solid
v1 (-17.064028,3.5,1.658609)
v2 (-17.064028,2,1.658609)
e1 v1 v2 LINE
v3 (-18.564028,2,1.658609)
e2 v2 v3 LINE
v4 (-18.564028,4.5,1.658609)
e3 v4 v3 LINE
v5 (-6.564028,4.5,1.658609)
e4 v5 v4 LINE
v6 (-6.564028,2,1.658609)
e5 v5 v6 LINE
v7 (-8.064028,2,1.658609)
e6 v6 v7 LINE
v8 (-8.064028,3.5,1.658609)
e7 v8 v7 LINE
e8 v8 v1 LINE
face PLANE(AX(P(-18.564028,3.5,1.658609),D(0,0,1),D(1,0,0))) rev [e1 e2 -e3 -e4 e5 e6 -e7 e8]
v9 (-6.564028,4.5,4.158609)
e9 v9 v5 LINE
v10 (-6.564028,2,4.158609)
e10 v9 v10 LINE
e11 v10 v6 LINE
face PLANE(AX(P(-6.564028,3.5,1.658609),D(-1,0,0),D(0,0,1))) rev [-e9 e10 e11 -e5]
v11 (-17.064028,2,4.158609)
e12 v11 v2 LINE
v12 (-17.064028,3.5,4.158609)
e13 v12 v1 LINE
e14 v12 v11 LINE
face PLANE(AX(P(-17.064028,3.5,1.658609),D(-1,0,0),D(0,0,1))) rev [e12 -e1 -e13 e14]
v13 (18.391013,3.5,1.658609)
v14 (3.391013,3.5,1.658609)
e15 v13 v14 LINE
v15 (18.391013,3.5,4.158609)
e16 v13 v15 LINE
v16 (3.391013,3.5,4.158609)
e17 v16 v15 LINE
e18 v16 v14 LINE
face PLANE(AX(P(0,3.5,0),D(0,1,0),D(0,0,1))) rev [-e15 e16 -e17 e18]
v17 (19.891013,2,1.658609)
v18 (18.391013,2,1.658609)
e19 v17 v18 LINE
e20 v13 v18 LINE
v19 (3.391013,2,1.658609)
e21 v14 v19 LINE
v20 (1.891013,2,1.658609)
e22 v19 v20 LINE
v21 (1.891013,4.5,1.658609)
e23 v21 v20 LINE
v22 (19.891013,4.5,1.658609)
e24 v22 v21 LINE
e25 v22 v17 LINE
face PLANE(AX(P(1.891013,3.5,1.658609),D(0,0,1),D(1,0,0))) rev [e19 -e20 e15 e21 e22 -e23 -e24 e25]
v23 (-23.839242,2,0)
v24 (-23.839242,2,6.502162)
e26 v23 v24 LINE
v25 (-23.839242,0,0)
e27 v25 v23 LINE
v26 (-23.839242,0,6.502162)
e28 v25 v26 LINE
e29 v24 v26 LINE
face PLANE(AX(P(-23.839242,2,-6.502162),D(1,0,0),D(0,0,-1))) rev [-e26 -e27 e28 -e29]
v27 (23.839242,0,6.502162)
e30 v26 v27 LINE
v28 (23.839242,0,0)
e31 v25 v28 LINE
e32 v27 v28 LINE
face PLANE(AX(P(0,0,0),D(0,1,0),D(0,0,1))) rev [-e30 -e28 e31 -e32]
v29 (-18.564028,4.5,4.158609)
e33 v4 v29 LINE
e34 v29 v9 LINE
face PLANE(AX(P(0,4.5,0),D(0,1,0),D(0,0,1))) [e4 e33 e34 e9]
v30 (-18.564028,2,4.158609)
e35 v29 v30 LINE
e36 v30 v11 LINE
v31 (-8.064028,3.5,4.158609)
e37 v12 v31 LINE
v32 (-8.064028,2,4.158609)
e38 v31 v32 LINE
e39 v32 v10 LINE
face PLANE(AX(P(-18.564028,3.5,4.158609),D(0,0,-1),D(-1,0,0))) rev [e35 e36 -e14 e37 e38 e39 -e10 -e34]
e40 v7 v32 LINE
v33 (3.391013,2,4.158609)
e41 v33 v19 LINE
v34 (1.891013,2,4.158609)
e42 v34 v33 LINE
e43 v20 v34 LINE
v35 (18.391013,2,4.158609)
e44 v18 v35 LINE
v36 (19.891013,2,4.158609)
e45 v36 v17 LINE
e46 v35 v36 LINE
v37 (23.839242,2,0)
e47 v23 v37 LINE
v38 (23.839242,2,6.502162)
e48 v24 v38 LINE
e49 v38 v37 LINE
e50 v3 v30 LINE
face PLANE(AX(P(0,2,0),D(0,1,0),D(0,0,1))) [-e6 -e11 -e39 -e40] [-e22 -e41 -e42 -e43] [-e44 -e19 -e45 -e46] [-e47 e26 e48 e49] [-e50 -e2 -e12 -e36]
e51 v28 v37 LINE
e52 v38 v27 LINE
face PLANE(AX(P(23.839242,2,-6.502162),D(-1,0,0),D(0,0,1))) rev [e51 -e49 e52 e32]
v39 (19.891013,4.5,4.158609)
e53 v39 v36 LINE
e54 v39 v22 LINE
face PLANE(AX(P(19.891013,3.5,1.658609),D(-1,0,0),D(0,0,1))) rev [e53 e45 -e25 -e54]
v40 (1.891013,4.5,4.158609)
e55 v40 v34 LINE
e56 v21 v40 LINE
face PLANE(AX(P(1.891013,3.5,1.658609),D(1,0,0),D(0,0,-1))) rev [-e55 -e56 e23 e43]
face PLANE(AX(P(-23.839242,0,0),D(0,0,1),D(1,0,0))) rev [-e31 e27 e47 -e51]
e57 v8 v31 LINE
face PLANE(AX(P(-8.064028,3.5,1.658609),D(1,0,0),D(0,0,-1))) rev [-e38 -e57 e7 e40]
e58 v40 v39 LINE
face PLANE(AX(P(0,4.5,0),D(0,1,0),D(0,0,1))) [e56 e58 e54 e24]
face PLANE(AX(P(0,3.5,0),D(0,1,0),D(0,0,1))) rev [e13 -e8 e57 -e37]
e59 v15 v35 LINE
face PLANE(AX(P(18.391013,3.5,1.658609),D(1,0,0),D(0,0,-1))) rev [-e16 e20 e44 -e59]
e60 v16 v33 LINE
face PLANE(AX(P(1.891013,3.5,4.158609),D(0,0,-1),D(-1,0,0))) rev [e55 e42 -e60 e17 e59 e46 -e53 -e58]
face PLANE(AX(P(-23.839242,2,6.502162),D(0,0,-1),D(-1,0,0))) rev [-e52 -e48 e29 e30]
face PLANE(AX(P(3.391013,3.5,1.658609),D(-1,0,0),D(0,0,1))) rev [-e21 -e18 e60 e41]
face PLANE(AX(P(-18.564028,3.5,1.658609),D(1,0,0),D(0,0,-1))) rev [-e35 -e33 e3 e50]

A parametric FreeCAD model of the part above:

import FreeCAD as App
import Part
import Sketcher


def add_polygon(sketch, points):
    """Adds a closed chain of lines whose ends are joined by coincident constraints."""
    first, n = sketch.GeometryCount, len(points)
    for a, b in zip(points, points[1:] + points[:1]):
        sketch.addGeometry(Part.LineSegment(App.Vector(*a, 0), App.Vector(*b, 0)), False)
    for i in range(n):
        sketch.addConstraint(Sketcher.Constraint("Coincident", first + i, 2, first + (i + 1) % n, 1))

doc = App.newDocument("Part")
body = doc.addObject("PartDesign::Body", "Body")

sketch1 = body.newObject("Sketcher::SketchObject", "Sketch")
sketch1.AttachmentSupport = (doc.getObject("XZ_Plane"), [""])
sketch1.MapMode = "FlatFace"
add_polygon(sketch1, [(-24, -7), (-24, 7), (24, 7), (24, -7)])
sketch1.addConstraint(Sketcher.Constraint("Vertical", 0))
sketch1.addConstraint(Sketcher.Constraint("Horizontal", 1))
sketch1.addConstraint(Sketcher.Constraint("Vertical", 2))
sketch1.addConstraint(Sketcher.Constraint("Horizontal", 3))
sketch1.addConstraint(Sketcher.Constraint("Symmetric", 0, 2, 2, 2, -1, 1))
sketch1.addConstraint(Sketcher.Constraint("DistanceX", 1, 1, 1, 2, 47.678484))
sketch1.addConstraint(Sketcher.Constraint("DistanceY", 0, 1, 0, 2, 13.004323))
pad1 = body.newObject("PartDesign::Pad", "Pad")
pad1.Profile = sketch1
pad1.Length = 2
pad1.Reversed = True

sketch2 = body.newObject("Sketcher::SketchObject", "Sketch001")
sketch2.AttachmentSupport = (doc.getObject("XZ_Plane"), [""])
sketch2.MapMode = "FlatFace"
sketch2.AttachmentOffset = App.Placement(App.Vector(0, 0, -2), App.Rotation())
add_polygon(sketch2, [(-18.6, 1.7), (-18.6, 4.2), (-17.1, 4.2), (-17.1, 1.7)])
add_polygon(sketch2, [(-8.1, 1.7), (-8.1, 4.2), (-6.6, 4.2), (-6.6, 1.7)])
add_polygon(sketch2, [(1.9, 1.7), (1.9, 4.2), (3.4, 4.2), (3.4, 1.7)])
add_polygon(sketch2, [(18.4, 1.7), (18.4, 4.2), (19.9, 4.2), (19.9, 1.7)])
sketch2.addConstraint(Sketcher.Constraint("Vertical", 0))
sketch2.addConstraint(Sketcher.Constraint("Horizontal", 1))
sketch2.addConstraint(Sketcher.Constraint("Vertical", 2))
sketch2.addConstraint(Sketcher.Constraint("Horizontal", 3))
sketch2.addConstraint(Sketcher.Constraint("Vertical", 4))
sketch2.addConstraint(Sketcher.Constraint("Horizontal", 5))
sketch2.addConstraint(Sketcher.Constraint("Vertical", 6))
sketch2.addConstraint(Sketcher.Constraint("Horizontal", 7))
sketch2.addConstraint(Sketcher.Constraint("Vertical", 8))
sketch2.addConstraint(Sketcher.Constraint("Horizontal", 9))
sketch2.addConstraint(Sketcher.Constraint("Vertical", 10))
sketch2.addConstraint(Sketcher.Constraint("Horizontal", 11))
sketch2.addConstraint(Sketcher.Constraint("Vertical", 12))
sketch2.addConstraint(Sketcher.Constraint("Horizontal", 13))
sketch2.addConstraint(Sketcher.Constraint("Vertical", 14))
sketch2.addConstraint(Sketcher.Constraint("Horizontal", 15))
sketch2.addConstraint(Sketcher.Constraint("Horizontal", 1, 2, 4, 2))
sketch2.addConstraint(Sketcher.Constraint("Horizontal", 3, 2, 6, 2))
sketch2.addConstraint(Sketcher.Constraint("Horizontal", 5, 2, 8, 2))
sketch2.addConstraint(Sketcher.Constraint("Horizontal", 7, 2, 10, 2))
sketch2.addConstraint(Sketcher.Constraint("Horizontal", 9, 2, 12, 2))
sketch2.addConstraint(Sketcher.Constraint("Horizontal", 11, 2, 14, 2))
sketch2.addConstraint(Sketcher.Constraint("Equal", 3, 5))
sketch2.addConstraint(Sketcher.Constraint("Equal", 7, 9))
sketch2.addConstraint(Sketcher.Constraint("Equal", 11, 13))
sketch2.addConstraint(Sketcher.Constraint("DistanceX", 1, 1, 1, 2, 1.5))
sketch2.addConstraint(Sketcher.Constraint("DistanceY", 0, 1, 0, 2, 2.5))
sketch2.addConstraint(Sketcher.Constraint("DistanceX", 1, 2, 4, 2, 9.0))
sketch2.addConstraint(Sketcher.Constraint("DistanceX", 9, 2, 12, 2, 15.0))
sketch2.addConstraint(Sketcher.Constraint("DistanceX", 0, 2, -1, 1, 18.564028))
sketch2.addConstraint(Sketcher.Constraint("DistanceY", -1, 1, 0, 2, 4.158609))
sketch2.addConstraint(Sketcher.Constraint("DistanceX", 5, 2, 8, 2, 8.455041))
pad2 = body.newObject("PartDesign::Pad", "Pad001")
pad2.Profile = sketch2
pad2.Length = 1.5
pad2.Reversed = True

sketch3 = body.newObject("Sketcher::SketchObject", "Sketch002")
sketch3.AttachmentSupport = (doc.getObject("XZ_Plane"), [""])
sketch3.MapMode = "FlatFace"
sketch3.AttachmentOffset = App.Placement(App.Vector(0, 0, -3.5), App.Rotation())
add_polygon(sketch3, [(-18.6, 1.7), (-18.6, 4.2), (-6.6, 4.2), (-6.6, 1.7)])
add_polygon(sketch3, [(1.9, 1.7), (1.9, 4.2), (19.9, 4.2), (19.9, 1.7)])
sketch3.addConstraint(Sketcher.Constraint("Vertical", 0))
sketch3.addConstraint(Sketcher.Constraint("Horizontal", 1))
sketch3.addConstraint(Sketcher.Constraint("Vertical", 2))
sketch3.addConstraint(Sketcher.Constraint("Horizontal", 3))
sketch3.addConstraint(Sketcher.Constraint("Vertical", 4))
sketch3.addConstraint(Sketcher.Constraint("Horizontal", 5))
sketch3.addConstraint(Sketcher.Constraint("Vertical", 6))
sketch3.addConstraint(Sketcher.Constraint("Horizontal", 7))
sketch3.addConstraint(Sketcher.Constraint("Horizontal", 1, 2, 4, 2))
sketch3.addConstraint(Sketcher.Constraint("Horizontal", 3, 2, 6, 2))
sketch3.addConstraint(Sketcher.Constraint("DistanceX", 1, 1, 1, 2, 12.0))
sketch3.addConstraint(Sketcher.Constraint("DistanceX", 5, 1, 5, 2, 18.0))
sketch3.addConstraint(Sketcher.Constraint("DistanceY", 0, 1, 0, 2, 2.5))
sketch3.addConstraint(Sketcher.Constraint("DistanceX", 0, 2, -1, 1, 18.564028))
sketch3.addConstraint(Sketcher.Constraint("DistanceY", -1, 1, 0, 2, 4.158609))
sketch3.addConstraint(Sketcher.Constraint("DistanceX", 1, 2, 4, 2, 8.455041))
pad3 = body.newObject("PartDesign::Pad", "Pad002")
pad3.Profile = sketch3
pad3.Length = 1
pad3.Reversed = True

sketch4 = body.newObject("Sketcher::SketchObject", "Sketch003")
sketch4.AttachmentSupport = (doc.getObject("XZ_Plane"), [""])
sketch4.MapMode = "FlatFace"
sketch4.AttachmentOffset = App.Placement(App.Vector(0, 0, -2), App.Rotation())
add_polygon(sketch4, [(-24, -7), (-24, 0), (24, 0), (24, -7)])
sketch4.addConstraint(Sketcher.Constraint("Vertical", 0))
sketch4.addConstraint(Sketcher.Constraint("Horizontal", 1))
sketch4.addConstraint(Sketcher.Constraint("Vertical", 2))
sketch4.addConstraint(Sketcher.Constraint("Horizontal", 3))
sketch4.addConstraint(Sketcher.Constraint("Symmetric", 0, 2, 1, 2, -1, 1))
sketch4.addConstraint(Sketcher.Constraint("DistanceY", 0, 1, 0, 2, 6.502162))
sketch4.addConstraint(Sketcher.Constraint("DistanceX", 1, 1, 1, 2, 47.678484))
pocket1 = body.newObject("PartDesign::Pocket", "Pocket")
pocket1.Profile = sketch4
pocket1.Type = "ThroughAll"
pocket1.Reversed = True

doc.recompute()
